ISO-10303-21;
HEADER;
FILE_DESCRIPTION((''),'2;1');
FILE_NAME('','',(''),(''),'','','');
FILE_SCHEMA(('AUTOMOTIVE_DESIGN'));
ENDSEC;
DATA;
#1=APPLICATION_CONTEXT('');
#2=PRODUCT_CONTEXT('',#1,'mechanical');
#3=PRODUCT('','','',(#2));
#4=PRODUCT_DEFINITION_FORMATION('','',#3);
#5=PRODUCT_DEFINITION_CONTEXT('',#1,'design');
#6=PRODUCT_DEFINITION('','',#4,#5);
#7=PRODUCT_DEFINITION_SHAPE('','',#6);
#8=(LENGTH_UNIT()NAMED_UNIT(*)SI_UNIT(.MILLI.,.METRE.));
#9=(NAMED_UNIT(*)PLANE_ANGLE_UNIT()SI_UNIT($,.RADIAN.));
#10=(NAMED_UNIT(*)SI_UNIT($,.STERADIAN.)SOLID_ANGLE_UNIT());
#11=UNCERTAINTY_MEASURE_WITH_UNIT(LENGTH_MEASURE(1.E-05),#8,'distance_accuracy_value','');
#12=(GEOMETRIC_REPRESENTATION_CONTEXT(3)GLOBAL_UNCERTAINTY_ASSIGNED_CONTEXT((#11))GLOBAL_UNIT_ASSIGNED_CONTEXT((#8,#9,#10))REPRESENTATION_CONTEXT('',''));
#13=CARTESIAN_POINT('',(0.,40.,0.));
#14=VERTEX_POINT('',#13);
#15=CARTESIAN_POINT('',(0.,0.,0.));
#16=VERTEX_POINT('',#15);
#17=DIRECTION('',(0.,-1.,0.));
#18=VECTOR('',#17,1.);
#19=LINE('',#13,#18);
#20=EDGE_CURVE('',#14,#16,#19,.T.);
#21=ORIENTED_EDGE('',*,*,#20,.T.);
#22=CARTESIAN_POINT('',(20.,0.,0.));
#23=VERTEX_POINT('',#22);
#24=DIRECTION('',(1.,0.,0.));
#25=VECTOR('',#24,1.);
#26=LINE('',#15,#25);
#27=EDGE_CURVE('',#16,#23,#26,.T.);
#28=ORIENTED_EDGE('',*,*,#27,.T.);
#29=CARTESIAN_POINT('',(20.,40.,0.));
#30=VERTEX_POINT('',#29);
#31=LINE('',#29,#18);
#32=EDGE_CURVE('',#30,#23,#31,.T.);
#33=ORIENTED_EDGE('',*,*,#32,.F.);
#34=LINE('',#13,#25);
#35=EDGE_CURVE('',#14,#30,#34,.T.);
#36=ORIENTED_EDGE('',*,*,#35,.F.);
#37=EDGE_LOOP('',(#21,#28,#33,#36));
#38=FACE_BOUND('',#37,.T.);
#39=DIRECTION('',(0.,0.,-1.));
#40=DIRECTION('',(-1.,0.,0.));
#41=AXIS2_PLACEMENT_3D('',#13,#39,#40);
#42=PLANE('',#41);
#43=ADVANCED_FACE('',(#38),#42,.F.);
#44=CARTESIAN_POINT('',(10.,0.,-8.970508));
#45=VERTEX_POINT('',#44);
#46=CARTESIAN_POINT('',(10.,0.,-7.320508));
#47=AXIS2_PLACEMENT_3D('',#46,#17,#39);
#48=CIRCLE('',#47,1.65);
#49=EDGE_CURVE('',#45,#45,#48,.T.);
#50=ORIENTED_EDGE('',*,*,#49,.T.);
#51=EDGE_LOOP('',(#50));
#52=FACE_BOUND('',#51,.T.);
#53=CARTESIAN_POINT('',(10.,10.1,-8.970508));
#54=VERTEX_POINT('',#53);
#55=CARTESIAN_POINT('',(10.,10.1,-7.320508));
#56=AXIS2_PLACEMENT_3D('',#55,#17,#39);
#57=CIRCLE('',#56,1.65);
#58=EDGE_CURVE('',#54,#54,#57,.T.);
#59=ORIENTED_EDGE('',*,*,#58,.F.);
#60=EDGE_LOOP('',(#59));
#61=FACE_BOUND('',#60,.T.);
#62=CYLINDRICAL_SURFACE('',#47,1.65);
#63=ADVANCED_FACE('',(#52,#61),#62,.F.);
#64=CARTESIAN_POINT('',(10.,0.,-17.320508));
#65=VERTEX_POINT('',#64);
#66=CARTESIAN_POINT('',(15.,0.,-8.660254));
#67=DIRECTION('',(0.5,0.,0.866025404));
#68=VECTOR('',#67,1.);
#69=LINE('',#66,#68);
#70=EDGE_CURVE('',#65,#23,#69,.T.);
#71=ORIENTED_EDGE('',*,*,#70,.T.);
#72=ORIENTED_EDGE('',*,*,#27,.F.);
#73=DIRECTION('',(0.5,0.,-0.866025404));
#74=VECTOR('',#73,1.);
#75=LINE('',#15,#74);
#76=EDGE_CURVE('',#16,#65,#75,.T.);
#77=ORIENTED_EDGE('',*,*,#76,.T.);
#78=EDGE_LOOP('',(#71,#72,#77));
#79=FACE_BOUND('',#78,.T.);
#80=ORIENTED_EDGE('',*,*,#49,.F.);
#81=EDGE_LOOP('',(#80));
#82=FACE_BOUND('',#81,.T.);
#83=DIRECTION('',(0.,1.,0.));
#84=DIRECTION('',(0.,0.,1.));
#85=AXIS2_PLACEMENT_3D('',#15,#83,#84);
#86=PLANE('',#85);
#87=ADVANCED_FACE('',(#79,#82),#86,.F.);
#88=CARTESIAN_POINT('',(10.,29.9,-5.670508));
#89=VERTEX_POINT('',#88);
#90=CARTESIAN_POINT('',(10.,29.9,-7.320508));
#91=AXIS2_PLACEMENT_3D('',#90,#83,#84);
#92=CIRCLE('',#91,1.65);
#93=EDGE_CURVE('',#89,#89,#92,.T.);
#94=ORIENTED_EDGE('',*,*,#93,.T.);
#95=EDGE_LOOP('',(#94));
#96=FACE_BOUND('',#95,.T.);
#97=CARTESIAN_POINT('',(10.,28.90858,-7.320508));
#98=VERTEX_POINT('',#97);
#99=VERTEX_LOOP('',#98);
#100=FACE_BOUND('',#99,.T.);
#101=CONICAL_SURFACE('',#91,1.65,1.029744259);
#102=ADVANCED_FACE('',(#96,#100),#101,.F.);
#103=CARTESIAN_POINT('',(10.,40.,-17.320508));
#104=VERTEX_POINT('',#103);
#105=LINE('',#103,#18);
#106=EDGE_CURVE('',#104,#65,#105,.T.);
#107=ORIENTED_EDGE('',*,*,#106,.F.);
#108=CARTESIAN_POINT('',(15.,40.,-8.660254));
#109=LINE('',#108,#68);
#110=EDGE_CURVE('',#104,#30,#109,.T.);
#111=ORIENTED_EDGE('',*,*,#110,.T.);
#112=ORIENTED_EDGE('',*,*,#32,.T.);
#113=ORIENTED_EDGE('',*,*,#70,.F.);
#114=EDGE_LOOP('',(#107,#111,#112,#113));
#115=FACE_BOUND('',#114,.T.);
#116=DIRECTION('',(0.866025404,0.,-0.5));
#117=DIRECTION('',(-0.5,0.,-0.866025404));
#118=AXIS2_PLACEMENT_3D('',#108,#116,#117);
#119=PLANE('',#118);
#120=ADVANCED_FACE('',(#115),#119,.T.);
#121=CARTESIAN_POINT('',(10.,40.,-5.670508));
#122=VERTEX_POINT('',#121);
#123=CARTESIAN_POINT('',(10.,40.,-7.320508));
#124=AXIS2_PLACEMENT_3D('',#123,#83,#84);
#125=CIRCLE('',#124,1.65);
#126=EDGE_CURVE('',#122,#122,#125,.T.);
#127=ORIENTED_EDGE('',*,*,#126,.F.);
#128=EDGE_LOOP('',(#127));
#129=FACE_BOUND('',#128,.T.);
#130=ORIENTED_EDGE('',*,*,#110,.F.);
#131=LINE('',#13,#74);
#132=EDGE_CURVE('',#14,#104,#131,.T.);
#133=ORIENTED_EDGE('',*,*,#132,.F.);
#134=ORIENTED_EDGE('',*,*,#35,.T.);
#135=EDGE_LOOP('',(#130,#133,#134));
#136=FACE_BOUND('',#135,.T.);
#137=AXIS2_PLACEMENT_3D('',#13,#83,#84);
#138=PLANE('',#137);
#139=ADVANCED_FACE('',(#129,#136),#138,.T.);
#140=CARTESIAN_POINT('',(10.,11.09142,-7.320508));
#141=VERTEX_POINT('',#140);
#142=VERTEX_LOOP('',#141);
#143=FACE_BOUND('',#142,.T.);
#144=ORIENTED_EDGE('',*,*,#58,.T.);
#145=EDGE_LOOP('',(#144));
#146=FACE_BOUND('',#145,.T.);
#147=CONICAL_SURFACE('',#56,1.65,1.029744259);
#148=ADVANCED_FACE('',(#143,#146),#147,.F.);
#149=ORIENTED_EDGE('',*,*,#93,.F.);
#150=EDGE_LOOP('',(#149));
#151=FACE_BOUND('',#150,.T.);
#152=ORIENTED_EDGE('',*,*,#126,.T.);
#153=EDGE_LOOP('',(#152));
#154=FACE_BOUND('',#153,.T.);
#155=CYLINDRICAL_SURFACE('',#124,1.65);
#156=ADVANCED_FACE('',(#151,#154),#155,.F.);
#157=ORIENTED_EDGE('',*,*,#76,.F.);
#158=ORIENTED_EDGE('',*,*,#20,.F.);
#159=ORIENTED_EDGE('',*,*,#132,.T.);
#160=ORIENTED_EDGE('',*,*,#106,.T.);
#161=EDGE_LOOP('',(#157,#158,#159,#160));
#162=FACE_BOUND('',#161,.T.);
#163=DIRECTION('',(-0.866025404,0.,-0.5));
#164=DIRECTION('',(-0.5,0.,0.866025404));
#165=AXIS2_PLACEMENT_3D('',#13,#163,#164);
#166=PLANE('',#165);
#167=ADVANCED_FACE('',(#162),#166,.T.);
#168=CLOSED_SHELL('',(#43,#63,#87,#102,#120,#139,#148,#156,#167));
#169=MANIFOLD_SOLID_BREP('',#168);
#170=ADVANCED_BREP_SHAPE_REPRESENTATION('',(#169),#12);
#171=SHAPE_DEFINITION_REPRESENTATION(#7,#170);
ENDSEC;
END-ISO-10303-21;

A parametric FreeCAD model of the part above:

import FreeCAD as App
import Part
import Sketcher
Q = App.Units.Quantity

doc = App.newDocument("Part")
body = doc.addObject("PartDesign::Body", "Body")

sketch1 = doc.addObject("Sketcher::SketchObject", "Sketch")
body.addObject(sketch1)
sketch1.AttachmentSupport = (doc.XZ_Plane, [""])
sketch1.MapMode = "FlatFace"
sketch1.addGeometry([
    Part.LineSegment(App.Vector(0, 0, 0), App.Vector(20, 0, 0)),
    Part.LineSegment(App.Vector(20, 0, 0), App.Vector(10, -17, 0)),
    Part.LineSegment(App.Vector(10, -17, 0), App.Vector(0, 0, 0)),
], False)
sketch1.addConstraint([
    Sketcher.Constraint("Coincident", 0, 2, 1, 1),
    Sketcher.Constraint("Coincident", 1, 2, 2, 1),
    Sketcher.Constraint("Coincident", 2, 2, 0, 1),
    Sketcher.Constraint("Horizontal", 0),
    Sketcher.Constraint("Coincident", 2, 2, -1, 1),
    Sketcher.Constraint("Equal", 1, 2),
    Sketcher.Constraint("DistanceX", 0, 1, 0, 2, 20.0),
    Sketcher.Constraint("Angle", 1, Q("-120 deg")),
])
pad1 = doc.addObject("PartDesign::Pad", "Pad")
body.addObject(pad1)
pad1.Profile = sketch1
pad1.Length = 40
pad1.Reversed = True

sketch2 = doc.addObject("Sketcher::SketchObject", "Sketch001")
body.addObject(sketch2)
sketch2.AttachmentSupport = (doc.XZ_Plane, [""])
sketch2.MapMode = "FlatFace"
sketch2.addGeometry(Part.Circle(App.Vector(10, -7.3, 0), App.Vector(0, 0, 1), 1.6), False)
sketch2.addConstraint([
    Sketcher.Constraint("Diameter", 0, 3.3),
    Sketcher.Constraint("DistanceX", -1, 1, 0, 3, 10.0),
    Sketcher.Constraint("DistanceY", 0, 3, -1, 1, 7.320508),
])
doc.recompute()
hole = doc.addObject("PartDesign::Hole", "Hole")
body.addObject(hole)
hole.Profile = sketch2
hole.ThreadType = "None"
hole.Diameter = 3.3
hole.DepthType = "Dimension"
hole.Depth = 10.1
hole.DrillPoint = "Angled"
hole.DrillPointAngle = 118

sketch3 = doc.addObject("Sketcher::SketchObject", "Sketch002")
body.addObject(sketch3)
sketch3.AttachmentSupport = (doc.XZ_Plane, [""])
sketch3.MapMode = "FlatFace"
sketch3.AttachmentOffset = App.Placement(App.Vector(0, 0, -40), App.Rotation())
sketch3.addGeometry(Part.Circle(App.Vector(10, -7.3, 0), App.Vector(0, 0, 1), 1.6), False)
sketch3.addConstraint([
    Sketcher.Constraint("Diameter", 0, 3.3),
    Sketcher.Constraint("DistanceX", -1, 1, 0, 3, 10.0),
    Sketcher.Constraint("DistanceY", 0, 3, -1, 1, 7.320508),
])
doc.recompute()
hole2 = doc.addObject("PartDesign::Hole", "Hole001")
body.addObject(hole2)
hole2.Profile = sketch3
hole2.ThreadType = "None"
hole2.Diameter = 3.3
hole2.DepthType = "Dimension"
hole2.Depth = 10.1
hole2.DrillPoint = "Angled"
hole2.DrillPointAngle = 118
hole2.Reversed = True

doc.recompute()
